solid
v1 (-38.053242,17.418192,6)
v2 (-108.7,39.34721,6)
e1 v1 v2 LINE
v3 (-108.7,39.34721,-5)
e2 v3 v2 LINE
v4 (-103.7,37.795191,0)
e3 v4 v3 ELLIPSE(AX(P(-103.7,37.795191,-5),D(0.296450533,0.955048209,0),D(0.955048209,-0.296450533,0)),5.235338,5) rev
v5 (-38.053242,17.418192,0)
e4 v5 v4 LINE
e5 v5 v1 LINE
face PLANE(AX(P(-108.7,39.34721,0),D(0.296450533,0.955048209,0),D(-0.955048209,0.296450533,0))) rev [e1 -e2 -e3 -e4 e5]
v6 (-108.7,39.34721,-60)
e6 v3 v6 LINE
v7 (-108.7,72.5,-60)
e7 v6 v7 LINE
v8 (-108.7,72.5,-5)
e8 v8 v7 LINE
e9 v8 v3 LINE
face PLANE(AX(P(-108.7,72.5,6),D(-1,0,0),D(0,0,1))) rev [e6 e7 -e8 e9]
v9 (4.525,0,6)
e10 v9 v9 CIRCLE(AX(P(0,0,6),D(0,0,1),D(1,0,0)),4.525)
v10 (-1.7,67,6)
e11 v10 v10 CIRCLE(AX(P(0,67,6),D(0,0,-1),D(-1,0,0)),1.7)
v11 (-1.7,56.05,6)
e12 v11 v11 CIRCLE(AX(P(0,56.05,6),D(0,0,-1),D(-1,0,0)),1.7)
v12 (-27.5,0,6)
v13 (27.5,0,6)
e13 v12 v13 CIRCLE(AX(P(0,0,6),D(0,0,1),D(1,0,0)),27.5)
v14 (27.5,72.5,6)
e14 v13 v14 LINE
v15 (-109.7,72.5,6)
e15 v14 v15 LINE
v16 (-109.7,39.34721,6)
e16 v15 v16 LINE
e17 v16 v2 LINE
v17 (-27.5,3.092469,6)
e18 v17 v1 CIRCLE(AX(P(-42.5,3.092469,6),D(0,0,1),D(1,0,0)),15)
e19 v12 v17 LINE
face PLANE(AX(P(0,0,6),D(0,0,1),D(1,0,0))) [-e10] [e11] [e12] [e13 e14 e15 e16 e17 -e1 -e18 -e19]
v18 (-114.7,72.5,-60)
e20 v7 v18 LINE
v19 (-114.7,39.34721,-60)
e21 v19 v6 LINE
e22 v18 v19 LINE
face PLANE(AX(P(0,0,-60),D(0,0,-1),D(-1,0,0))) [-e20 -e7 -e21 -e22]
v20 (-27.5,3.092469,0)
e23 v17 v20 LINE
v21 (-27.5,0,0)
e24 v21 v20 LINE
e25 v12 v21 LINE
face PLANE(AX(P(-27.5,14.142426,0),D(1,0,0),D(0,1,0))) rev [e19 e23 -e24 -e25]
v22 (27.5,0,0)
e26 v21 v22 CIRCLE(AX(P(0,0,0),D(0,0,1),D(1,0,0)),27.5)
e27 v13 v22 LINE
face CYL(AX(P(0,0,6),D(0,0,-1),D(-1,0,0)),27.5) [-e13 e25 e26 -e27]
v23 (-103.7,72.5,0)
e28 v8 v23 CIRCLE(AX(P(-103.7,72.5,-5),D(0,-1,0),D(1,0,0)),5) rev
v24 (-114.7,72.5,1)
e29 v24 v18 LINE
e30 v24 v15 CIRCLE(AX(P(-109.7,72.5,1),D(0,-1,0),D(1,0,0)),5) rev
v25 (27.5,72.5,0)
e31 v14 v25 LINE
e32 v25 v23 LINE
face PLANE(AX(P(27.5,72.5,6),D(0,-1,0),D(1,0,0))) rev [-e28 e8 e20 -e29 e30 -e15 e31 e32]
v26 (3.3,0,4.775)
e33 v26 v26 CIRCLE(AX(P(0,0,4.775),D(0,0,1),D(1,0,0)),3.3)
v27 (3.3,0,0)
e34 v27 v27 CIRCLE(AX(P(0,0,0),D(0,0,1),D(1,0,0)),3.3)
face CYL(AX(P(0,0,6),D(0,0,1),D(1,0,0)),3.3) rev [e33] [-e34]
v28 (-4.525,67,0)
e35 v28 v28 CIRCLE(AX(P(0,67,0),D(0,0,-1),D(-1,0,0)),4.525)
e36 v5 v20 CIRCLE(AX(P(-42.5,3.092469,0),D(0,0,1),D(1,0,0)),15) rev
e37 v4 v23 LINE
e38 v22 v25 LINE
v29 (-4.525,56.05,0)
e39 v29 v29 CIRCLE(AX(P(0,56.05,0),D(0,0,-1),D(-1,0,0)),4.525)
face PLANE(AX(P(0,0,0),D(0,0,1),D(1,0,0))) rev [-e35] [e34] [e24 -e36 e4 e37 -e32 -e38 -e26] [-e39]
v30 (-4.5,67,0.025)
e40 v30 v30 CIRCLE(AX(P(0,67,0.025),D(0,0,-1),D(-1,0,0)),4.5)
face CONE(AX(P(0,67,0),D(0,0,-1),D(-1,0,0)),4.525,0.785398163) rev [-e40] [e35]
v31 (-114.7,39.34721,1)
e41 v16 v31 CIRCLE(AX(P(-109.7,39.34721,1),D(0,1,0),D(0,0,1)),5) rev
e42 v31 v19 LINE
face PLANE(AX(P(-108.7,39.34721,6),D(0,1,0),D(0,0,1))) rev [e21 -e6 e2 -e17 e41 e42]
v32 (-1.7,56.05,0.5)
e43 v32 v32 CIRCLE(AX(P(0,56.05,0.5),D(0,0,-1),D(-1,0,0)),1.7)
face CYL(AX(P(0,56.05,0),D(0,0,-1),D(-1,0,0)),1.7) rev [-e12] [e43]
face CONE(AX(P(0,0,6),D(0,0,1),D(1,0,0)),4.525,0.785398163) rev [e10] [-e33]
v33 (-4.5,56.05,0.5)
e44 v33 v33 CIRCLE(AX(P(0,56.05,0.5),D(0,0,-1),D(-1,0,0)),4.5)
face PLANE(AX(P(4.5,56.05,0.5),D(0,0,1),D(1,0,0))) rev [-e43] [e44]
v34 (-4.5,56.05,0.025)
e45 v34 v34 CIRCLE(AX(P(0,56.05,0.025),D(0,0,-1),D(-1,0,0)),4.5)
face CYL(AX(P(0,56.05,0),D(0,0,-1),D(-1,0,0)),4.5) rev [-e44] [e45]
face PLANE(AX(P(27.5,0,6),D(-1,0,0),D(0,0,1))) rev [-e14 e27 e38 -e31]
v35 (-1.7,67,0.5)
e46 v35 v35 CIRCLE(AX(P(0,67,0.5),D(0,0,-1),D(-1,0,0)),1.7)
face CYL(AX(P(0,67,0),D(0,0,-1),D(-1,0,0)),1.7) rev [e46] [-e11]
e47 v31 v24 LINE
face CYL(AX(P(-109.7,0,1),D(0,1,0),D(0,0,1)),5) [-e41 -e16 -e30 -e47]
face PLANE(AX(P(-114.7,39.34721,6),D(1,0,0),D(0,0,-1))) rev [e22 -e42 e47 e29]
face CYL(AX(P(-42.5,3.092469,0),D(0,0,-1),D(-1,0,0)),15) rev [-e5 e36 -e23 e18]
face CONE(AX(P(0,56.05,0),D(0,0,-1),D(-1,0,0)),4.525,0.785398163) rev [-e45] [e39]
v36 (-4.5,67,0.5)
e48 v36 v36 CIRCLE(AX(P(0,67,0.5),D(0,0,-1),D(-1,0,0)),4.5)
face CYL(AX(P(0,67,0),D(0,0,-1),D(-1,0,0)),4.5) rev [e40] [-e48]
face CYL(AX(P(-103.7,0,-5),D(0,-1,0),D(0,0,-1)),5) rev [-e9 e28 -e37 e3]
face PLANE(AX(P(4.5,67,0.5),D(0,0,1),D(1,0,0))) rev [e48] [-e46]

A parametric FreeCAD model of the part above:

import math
import FreeCAD as App
import Part
import Sketcher

V = App.Vector
Q = App.Units.Quantity


def edges_at(feature, points):
    """Names of the edges that pass closest to the given points."""
    edges = feature.Shape.Edges
    near = lambda p: min(range(len(edges)), key=lambda i: edges[i].distToShape(Part.Vertex(*p))[0])
    return sorted({f"Edge{near(p) + 1}" for p in points})


def add_polygon(sketch, points):
    """Adds a closed chain of lines whose ends are joined by coincident constraints."""
    first, n = sketch.GeometryCount, len(points)
    for a, b in zip(points, points[1:] + points[:1]):
        sketch.addGeometry(Part.LineSegment(App.Vector(*a, 0), App.Vector(*b, 0)), False)
    for i in range(n):
        sketch.addConstraint(Sketcher.Constraint("Coincident", first + i, 2, first + (i + 1) % n, 1))

doc = App.newDocument("Part")
body = doc.addObject("PartDesign::Body", "Body")

sketch1 = body.newObject("Sketcher::SketchObject", "Sketch")
sketch1.AttachmentSupport = (doc.getObject("XY_Plane"), [""])
sketch1.MapMode = "FlatFace"
sketch1.addGeometry([
    Part.LineSegment(V(-27.5, 45, 0), V(-27.5, 0, 0)),
    Part.ArcOfCircle(Part.Circle(V(0, 0, 0), V(0, 0, 1), 27.5), math.radians(180), math.radians(360)),
    Part.LineSegment(V(27.5, 0, 0), V(27.5, 45, 0)),
    Part.ArcOfCircle(Part.Circle(V(0, 45, 0), V(0, 0, 1), 27.5), math.radians(0), math.radians(180)),
], False)
sketch1.addConstraint([
    Sketcher.Constraint("Tangent", 0, 2, 1, 1),
    Sketcher.Constraint("Tangent", 1, 2, 2, 1),
    Sketcher.Constraint("Tangent", 2, 2, 3, 1),
    Sketcher.Constraint("Tangent", 3, 2, 0, 1),
    Sketcher.Constraint("Vertical", 0),
    Sketcher.Constraint("Vertical", 2),
    Sketcher.Constraint("Coincident", 1, 3, -1, 1),
    Sketcher.Constraint("Radius", 1, Q("27.5 mm")),
    Sketcher.Constraint("DistanceY", 0, 2, 0, 1, Q("45 mm")),
])
pad1 = body.newObject("PartDesign::Pad", "Pad")
pad1.Profile = sketch1
pad1.Length = 6

sketch2 = body.newObject("Sketcher::SketchObject", "Sketch001")
sketch2.AttachmentSupport = (doc.getObject("XY_Plane"), [""])
sketch2.MapMode = "FlatFace"
add_polygon(sketch2, [(-108.7, 72.5), (-108.7, 0), (27.5, 0), (27.5, 72.5)])
sketch2.addConstraint([
    Sketcher.Constraint("Vertical", 0),
    Sketcher.Constraint("Horizontal", 1),
    Sketcher.Constraint("Vertical", 2),
    Sketcher.Constraint("Horizontal", 3),
    Sketcher.Constraint("PointOnObject", 0, 2, -1),
    Sketcher.Constraint("DistanceX", 1, 1, 1, 2, Q("136.2 mm")),
    Sketcher.Constraint("DistanceY", 0, 2, 0, 1, Q("72.5 mm")),
    Sketcher.Constraint("DistanceX", 0, 2, -1, 1, Q("108.7 mm")),
])
pad2 = body.newObject("PartDesign::Pad", "Pad001")
pad2.Profile = sketch2
pad2.Length = 6

sketch3 = body.newObject("Sketcher::SketchObject", "Sketch002")
sketch3.AttachmentSupport = (doc.getObject("XY_Plane"), [""])
sketch3.MapMode = "FlatFace"
sketch3.AttachmentOffset = App.Placement(V(0, 0, 6), App.Rotation())
add_polygon(sketch3, [(-108.7, 0), (-27.5, 0), (-27.5, 14.142426), (-108.7, 39.34721)])
sketch3.addConstraint([
    Sketcher.Constraint("Horizontal", 0),
    Sketcher.Constraint("Vertical", 1),
    Sketcher.Constraint("Vertical", 3),
    Sketcher.Constraint("PointOnObject", 0, 2, -1),
    Sketcher.Constraint("DistanceX", 0, 1, 0, 2, Q("81.2 mm")),
    Sketcher.Constraint("DistanceX", 0, 2, -1, 1, Q("27.5 mm")),
    Sketcher.Constraint("DistanceY", 3, 2, 3, 1, Q("39.34721 mm")),
    Sketcher.Constraint("DistanceY", 1, 1, 1, 2, Q("14.142426 mm")),
])
pocket1 = body.newObject("PartDesign::Pocket", "Pocket")
pocket1.Profile = sketch3
pocket1.Type = "ThroughAll"
doc.recompute()

fillet = body.newObject("PartDesign::Fillet", "Fillet")
fillet.Base = (pocket1, edges_at(pocket1, [(-27.5, 14.142, 3)]))
fillet.Radius = 15

sketch4 = body.newObject("Sketcher::SketchObject", "Sketch003")
sketch4.AttachmentSupport = (doc.getObject("XY_Plane"), [""])
sketch4.MapMode = "FlatFace"
add_polygon(sketch4, [(-114.7, 72.5), (-114.7, 39.34721), (-108.7, 39.34721), (-108.7, 72.5)])
sketch4.addConstraint([
    Sketcher.Constraint("Vertical", 0),
    Sketcher.Constraint("Horizontal", 1),
    Sketcher.Constraint("Vertical", 2),
    Sketcher.Constraint("Horizontal", 3),
    Sketcher.Constraint("DistanceX", 1, 1, 1, 2, Q("6 mm")),
    Sketcher.Constraint("DistanceX", 0, 2, -1, 1, Q("114.7 mm")),
    Sketcher.Constraint("DistanceY", -1, 1, 2, 2, Q("72.5 mm")),
    Sketcher.Constraint("DistanceY", 0, 2, 0, 1, Q("33.15279 mm")),
])
pad3 = body.newObject("PartDesign::Pad", "Pad002")
pad3.Profile = sketch4
pad3.Type = "TwoLengths"
pad3.Length = 6
pad3.Length2 = 60
doc.recompute()

fillet2 = body.newObject("PartDesign::Fillet", "Fillet001")
fillet2.Base = (pad3, edges_at(pad3, [(-108.7, 55.924, 0)]))
fillet2.Radius = 5
doc.recompute()

fillet3 = body.newObject("PartDesign::Fillet", "Fillet002")
fillet3.Base = (fillet2, edges_at(fillet2, [(-114.7, 55.924, 6)]))
fillet3.Radius = 5

sketch5 = body.newObject("Sketcher::SketchObject", "Sketch004")
sketch5.AttachmentSupport = (doc.getObject("XY_Plane"), [""])
sketch5.MapMode = "FlatFace"
sketch5.AttachmentOffset = App.Placement(V(0, 0, 6), App.Rotation())
sketch5.addGeometry(Part.Circle(V(0, 0, 0), V(0, 0, 1), 3.3), False)
sketch5.addConstraint([
    Sketcher.Constraint("Coincident", 0, 3, -1, 1),
    Sketcher.Constraint("Diameter", 0, Q("6.6 mm")),
])
doc.recompute()
hole = body.newObject("PartDesign::Hole", "Hole")
hole.Profile = sketch5
hole.ThreadType = "None"
hole.Diameter = 6.6
hole.DepthType = "ThroughAll"
hole.HoleCutType = "Countersink"
hole.HoleCutDiameter = 9.05
hole.HoleCutCountersinkAngle = 90

sketch6 = body.newObject("Sketcher::SketchObject", "Sketch005")
sketch6.AttachmentSupport = (doc.getObject("YZ_Plane"), [""])
sketch6.MapMode = "FlatFace"
add_polygon(sketch6, [(67, 6), (67, 0), (71.525, 0), (71.5, 0.025), (71.5, 0.5), (68.7, 0.5), (68.7, 6)])
sketch6.addGeometry(Part.LineSegment(V(67, 0, 0), V(67, 6, 0)), True)
sketch6.addConstraint([
    Sketcher.Constraint("Vertical", 0),
    Sketcher.Constraint("Horizontal", 1),
    Sketcher.Constraint("Vertical", 3),
    Sketcher.Constraint("Horizontal", 4),
    Sketcher.Constraint("Vertical", 5),
    Sketcher.Constraint("Horizontal", 6),
    Sketcher.Constraint("Vertical", 7),
    Sketcher.Constraint("Coincident", 7, 1, 0, 2),
    Sketcher.Constraint("PointOnObject", 0, 2, -1),
    Sketcher.Constraint("Horizontal", 5, 2, 7, 2),
    Sketcher.Constraint("DistanceY", 0, 2, 0, 1, Q("6 mm")),
    Sketcher.Constraint("Angle", 2, Q("135 deg")),
    Sketcher.Constraint("DistanceX", 4, 2, 4, 1, Q("2.8 mm")),
    Sketcher.Constraint("DistanceX", 6, 2, 6, 1, Q("1.7 mm")),
    Sketcher.Constraint("DistanceY", 5, 1, 5, 2, Q("5.5 mm")),
    Sketcher.Constraint("DistanceX", -1, 1, 0, 2, Q("67 mm")),
    Sketcher.Constraint("DistanceX", 1, 1, 1, 2, Q("4.525 mm")),
])
groove = body.newObject("PartDesign::Groove", "Groove")
groove.Profile = sketch6
groove.ReferenceAxis = (sketch6, ["Axis0"])
groove.Angle = 360
doc.recompute()

linearpattern = body.newObject("PartDesign::LinearPattern", "LinearPattern")
linearpattern.Originals = [groove]
linearpattern.Direction = (doc.getObject("Y_Axis"), [""])
linearpattern.Mode = "offset"
linearpattern.Offset = 10.95
linearpattern.Occurrences = 2
linearpattern.Reversed = True
body.Tip = linearpattern

doc.recompute()
